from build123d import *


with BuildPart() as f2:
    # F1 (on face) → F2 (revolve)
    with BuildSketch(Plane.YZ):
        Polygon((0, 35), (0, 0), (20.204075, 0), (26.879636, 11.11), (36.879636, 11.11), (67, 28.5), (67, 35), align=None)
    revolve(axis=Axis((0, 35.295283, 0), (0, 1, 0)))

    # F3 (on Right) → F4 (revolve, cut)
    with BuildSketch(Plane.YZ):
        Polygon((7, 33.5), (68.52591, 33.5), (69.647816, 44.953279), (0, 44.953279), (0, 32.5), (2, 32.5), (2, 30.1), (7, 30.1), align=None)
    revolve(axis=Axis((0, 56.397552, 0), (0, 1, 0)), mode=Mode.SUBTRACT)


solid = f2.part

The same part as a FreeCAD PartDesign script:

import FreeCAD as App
import Part
import Sketcher
Q = App.Units.Quantity


def add_polygon(sketch, points):
    """Adds a closed chain of lines whose ends are joined by coincident constraints."""
    first, n = sketch.GeometryCount, len(points)
    for a, b in zip(points, points[1:] + points[:1]):
        sketch.addGeometry(Part.LineSegment(App.Vector(*a, 0), App.Vector(*b, 0)), False)
    for i in range(n):
        sketch.addConstraint(Sketcher.Constraint("Coincident", first + i, 2, first + (i + 1) % n, 1))

doc = App.newDocument("Part")
params = doc.addObject("Spreadsheet::Sheet", "Params")
for row, (alias, value) in enumerate([
    ("sketch1_width", "10 mm"),
    ("sketch1_width2", "67 mm"),
    ("sketch1_height", "35 mm"),
    ("sketch1_height2", "6.5 mm"),
    ("sketch1_length", "34.78 mm"),
    ("revolution_angle", "360 deg"),
    ("sketch2_width", "2 mm"),
    ("sketch2_width2", "5 mm"),
    ("sketch2_height", "2.4 mm"),
    ("sketch2_height2", "3.4 mm"),
    ("groove_angle", "360 deg"),
], start=1):
    params.set(f"A{row}", alias)
    params.set(f"B{row}", "=" + value)
    params.setAlias(f"B{row}", alias)

body = doc.addObject("PartDesign::Body", "Body")

# Sketch on YZ plane
sketch1 = doc.addObject("Sketcher::SketchObject", "Sketch")
body.addObject(sketch1)
sketch1.AttachmentSupport = (doc.YZ_Plane, [""])
sketch1.MapMode = "FlatFace"
add_polygon(sketch1, [(0, 35), (0, 0), (20, 0), (27, 11), (37, 11), (67, 28), (67, 35)])  # lines 0-6
sketch1.addConstraint([
    Sketcher.Constraint("Vertical", 0),
    Sketcher.Constraint("Horizontal", 1),
    Sketcher.Constraint("Horizontal", 3),
    Sketcher.Constraint("Vertical", 5),
    Sketcher.Constraint("Horizontal", 6),
    Sketcher.Constraint("Coincident", 0, 2, -1, 1),
    Sketcher.Constraint("DistanceX", 3, 1, 3, 2, Q("10 mm")),
    Sketcher.Constraint("DistanceX", 6, 2, 6, 1, Q("67 mm")),
    Sketcher.Constraint("DistanceY", 0, 2, 0, 1, Q("35 mm")),
    Sketcher.Constraint("Angle", 2, Q("59.000002 deg")),
    Sketcher.Constraint("Angle", 4, Q("30 deg")),
    Sketcher.Constraint("DistanceY", 5, 1, 5, 2, Q("6.5 mm")),
    Sketcher.Constraint("Distance", 4, Q("34.78 mm")),
])
sketch1.setExpression("Constraints[13]", "Params.sketch1_width")
sketch1.setExpression("Constraints[14]", "Params.sketch1_width2")
sketch1.setExpression("Constraints[15]", "Params.sketch1_height")
sketch1.setExpression("Constraints[18]", "Params.sketch1_height2")
sketch1.setExpression("Constraints[19]", "Params.sketch1_length")
revolution = doc.addObject("PartDesign::Revolution", "Revolution")
body.addObject(revolution)
revolution.Profile = sketch1
revolution.ReferenceAxis = (sketch1, ["H_Axis"])
revolution.setExpression("Angle", "Params.revolution_angle")

# Sketch on YZ plane
sketch2 = doc.addObject("Sketcher::SketchObject", "Sketch001")
body.addObject(sketch2)
sketch2.AttachmentSupport = (doc.YZ_Plane, [""])
sketch2.MapMode = "FlatFace"
add_polygon(sketch2, [(7, 33.5), (68.5, 33.5), (69.6, 45), (0, 45), (0, 32.5), (2, 32.5), (2, 30.1), (7, 30.1)])  # lines 0-7
sketch2.addConstraint([
    Sketcher.Constraint("Horizontal", 0),
    Sketcher.Constraint("Horizontal", 2),
    Sketcher.Constraint("Vertical", 3),
    Sketcher.Constraint("Horizontal", 4),
    Sketcher.Constraint("Vertical", 5),
    Sketcher.Constraint("Horizontal", 6),
    Sketcher.Constraint("Vertical", 7),
    Sketcher.Constraint("PointOnObject", 2, 2, -2),
    Sketcher.Constraint("DistanceX", 4, 1, 4, 2, Q("2 mm")),
    Sketcher.Constraint("DistanceX", 6, 1, 6, 2, Q("5 mm")),
    Sketcher.Constraint("DistanceY", 5, 2, 5, 1, Q("2.4 mm")),
    Sketcher.Constraint("DistanceY", 7, 1, 7, 2, Q("3.4 mm")),
    Sketcher.Constraint("DistanceY", -1, 1, 0, 2, Q("33.5 mm")),
    Sketcher.Constraint("DistanceX", 0, 1, 0, 2, Q("61.52591 mm")),
    Sketcher.Constraint("DistanceY", 3, 2, 3, 1, Q("12.453279 mm")),
    Sketcher.Constraint("DistanceX", 2, 2, 2, 1, Q("69.647816 mm")),
])
sketch2.setExpression("Constraints[16]", "Params.sketch2_width")
sketch2.setExpression("Constraints[17]", "Params.sketch2_width2")
sketch2.setExpression("Constraints[18]", "Params.sketch2_height")
sketch2.setExpression("Constraints[19]", "Params.sketch2_height2")
groove = doc.addObject("PartDesign::Groove", "Groove")
body.addObject(groove)
groove.Profile = sketch2
groove.ReferenceAxis = (sketch2, ["H_Axis"])
groove.setExpression("Angle", "Params.groove_angle")

doc.recompute()
